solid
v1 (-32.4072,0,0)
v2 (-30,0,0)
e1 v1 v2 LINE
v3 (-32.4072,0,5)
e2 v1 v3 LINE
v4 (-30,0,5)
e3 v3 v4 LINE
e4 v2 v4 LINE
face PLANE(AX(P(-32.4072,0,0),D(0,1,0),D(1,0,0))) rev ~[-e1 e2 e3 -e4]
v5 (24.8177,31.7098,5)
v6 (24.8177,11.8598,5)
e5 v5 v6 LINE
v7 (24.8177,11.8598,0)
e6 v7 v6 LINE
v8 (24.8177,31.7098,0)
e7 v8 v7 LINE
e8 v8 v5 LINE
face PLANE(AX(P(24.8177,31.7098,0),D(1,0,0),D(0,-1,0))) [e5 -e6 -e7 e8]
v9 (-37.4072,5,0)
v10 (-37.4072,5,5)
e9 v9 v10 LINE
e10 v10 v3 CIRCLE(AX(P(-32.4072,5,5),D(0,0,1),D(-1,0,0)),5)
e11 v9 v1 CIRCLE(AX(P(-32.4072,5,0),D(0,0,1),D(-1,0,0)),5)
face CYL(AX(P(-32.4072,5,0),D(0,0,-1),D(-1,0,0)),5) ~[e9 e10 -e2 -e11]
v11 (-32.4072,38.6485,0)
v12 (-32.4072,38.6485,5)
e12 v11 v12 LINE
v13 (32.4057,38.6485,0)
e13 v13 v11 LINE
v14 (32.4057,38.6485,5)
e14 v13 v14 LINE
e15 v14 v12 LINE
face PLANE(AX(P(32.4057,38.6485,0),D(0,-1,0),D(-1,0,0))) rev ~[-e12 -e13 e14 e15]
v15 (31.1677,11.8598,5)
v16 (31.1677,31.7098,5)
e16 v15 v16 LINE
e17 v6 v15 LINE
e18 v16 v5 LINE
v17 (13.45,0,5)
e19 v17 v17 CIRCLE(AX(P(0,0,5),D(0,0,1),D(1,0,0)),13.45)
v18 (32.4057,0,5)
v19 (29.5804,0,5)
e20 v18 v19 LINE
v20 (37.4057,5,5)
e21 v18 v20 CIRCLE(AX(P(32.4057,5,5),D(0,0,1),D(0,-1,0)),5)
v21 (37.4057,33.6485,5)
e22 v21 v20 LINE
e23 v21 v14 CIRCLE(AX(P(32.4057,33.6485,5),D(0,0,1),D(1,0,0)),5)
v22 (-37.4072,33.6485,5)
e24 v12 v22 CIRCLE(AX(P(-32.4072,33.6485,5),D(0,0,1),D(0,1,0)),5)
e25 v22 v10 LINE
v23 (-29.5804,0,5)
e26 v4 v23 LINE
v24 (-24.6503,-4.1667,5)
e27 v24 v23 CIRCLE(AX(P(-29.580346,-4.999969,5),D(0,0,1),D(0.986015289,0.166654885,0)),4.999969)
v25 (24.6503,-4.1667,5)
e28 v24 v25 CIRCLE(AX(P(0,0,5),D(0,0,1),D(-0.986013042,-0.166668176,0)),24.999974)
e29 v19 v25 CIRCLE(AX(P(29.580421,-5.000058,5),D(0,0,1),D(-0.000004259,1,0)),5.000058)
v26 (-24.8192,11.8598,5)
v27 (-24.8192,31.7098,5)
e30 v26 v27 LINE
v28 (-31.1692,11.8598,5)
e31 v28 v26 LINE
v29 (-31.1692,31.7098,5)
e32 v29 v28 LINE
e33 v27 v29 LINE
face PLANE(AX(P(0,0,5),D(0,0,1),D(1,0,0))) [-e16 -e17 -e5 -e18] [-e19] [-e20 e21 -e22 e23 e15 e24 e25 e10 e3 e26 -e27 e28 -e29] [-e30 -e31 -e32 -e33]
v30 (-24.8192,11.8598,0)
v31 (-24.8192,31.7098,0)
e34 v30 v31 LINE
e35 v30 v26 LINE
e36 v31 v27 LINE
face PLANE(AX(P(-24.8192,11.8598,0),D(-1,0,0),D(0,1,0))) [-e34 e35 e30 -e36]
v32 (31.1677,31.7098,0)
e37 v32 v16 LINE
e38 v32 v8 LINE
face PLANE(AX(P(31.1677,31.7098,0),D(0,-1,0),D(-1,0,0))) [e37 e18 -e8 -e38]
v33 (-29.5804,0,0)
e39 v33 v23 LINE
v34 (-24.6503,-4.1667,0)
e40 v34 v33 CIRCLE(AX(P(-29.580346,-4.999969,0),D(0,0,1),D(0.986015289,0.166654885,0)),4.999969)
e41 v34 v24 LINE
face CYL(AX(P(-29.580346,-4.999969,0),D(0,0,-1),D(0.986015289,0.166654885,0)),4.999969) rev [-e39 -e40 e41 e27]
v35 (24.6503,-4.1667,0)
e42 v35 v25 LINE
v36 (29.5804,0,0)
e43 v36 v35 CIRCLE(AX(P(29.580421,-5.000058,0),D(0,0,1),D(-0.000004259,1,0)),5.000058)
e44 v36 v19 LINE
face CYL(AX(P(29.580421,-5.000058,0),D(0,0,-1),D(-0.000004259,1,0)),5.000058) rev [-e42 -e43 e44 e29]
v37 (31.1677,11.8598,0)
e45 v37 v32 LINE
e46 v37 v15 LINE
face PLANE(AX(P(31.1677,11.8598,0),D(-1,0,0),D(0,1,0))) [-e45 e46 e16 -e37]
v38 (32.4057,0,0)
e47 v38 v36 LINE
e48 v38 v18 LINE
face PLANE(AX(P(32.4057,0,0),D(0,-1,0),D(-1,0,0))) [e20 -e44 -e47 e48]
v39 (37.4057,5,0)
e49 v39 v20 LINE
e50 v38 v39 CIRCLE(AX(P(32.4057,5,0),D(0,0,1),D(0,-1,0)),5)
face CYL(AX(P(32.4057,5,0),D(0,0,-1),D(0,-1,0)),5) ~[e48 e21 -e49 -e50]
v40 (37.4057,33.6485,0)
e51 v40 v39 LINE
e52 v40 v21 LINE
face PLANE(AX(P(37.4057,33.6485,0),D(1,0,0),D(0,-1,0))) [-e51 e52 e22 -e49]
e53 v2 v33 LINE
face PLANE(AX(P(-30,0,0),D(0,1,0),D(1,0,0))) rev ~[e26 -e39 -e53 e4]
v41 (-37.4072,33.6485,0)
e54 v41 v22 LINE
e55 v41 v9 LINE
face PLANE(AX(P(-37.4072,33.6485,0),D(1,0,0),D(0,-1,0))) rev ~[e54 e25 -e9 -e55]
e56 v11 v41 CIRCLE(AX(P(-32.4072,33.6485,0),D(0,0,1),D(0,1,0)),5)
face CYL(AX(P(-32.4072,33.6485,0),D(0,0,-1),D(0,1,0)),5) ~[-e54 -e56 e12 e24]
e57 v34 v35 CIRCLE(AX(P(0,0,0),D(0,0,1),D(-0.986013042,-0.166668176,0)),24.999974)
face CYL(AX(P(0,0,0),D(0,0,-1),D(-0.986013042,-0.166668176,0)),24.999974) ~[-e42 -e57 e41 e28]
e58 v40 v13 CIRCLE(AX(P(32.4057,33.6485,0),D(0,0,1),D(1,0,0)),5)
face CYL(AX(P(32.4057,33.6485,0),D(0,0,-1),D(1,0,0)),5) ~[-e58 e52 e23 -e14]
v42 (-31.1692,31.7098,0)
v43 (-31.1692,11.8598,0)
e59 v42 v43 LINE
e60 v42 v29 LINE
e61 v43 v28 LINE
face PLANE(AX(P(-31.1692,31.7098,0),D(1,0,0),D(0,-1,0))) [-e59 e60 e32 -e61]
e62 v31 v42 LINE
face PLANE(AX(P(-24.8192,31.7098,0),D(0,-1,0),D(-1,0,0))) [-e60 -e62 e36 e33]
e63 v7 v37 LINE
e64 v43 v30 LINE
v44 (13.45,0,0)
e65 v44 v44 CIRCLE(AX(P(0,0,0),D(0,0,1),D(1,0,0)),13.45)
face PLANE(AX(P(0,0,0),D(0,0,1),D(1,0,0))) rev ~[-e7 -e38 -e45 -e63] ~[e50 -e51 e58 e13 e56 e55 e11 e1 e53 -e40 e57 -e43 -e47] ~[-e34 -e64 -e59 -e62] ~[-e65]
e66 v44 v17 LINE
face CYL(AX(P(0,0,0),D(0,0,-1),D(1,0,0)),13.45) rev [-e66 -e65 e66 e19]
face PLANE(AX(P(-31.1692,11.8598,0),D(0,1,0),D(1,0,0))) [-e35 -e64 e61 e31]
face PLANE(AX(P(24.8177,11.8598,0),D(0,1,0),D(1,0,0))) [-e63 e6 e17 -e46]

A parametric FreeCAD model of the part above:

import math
import FreeCAD as App
import Part
import Sketcher

V = App.Vector


def add_polygon(sketch, points):
    """Adds a closed chain of lines whose ends are joined by coincident constraints."""
    first, n = sketch.GeometryCount, len(points)
    for a, b in zip(points, points[1:] + points[:1]):
        sketch.addGeometry(Part.LineSegment(App.Vector(*a, 0), App.Vector(*b, 0)), False)
    for i in range(n):
        sketch.addConstraint(Sketcher.Constraint("Coincident", first + i, 2, first + (i + 1) % n, 1))

doc = App.newDocument("Part")
body = doc.addObject("PartDesign::Body", "Body")

sketch1 = body.newObject("Sketcher::SketchObject", "Sketch")
sketch1.AttachmentSupport = (doc.getObject("XY_Plane"), [""])
sketch1.MapMode = "FlatFace"
sketch1.addGeometry(Part.ArcOfCircle(Part.Circle(V(32.4, 33.6, 0), V(0, 0, 1), 5), math.radians(0), math.radians(90)), False)
sketch1.addGeometry(Part.LineSegment(V(32.4, 38.6, 0), V(-32.4, 38.6, 0)), False)
sketch1.addGeometry(Part.ArcOfCircle(Part.Circle(V(-32.4, 33.6, 0), V(0, 0, 1), 5), math.radians(90), math.radians(180)), False)
sketch1.addGeometry(Part.LineSegment(V(-37.4, 33.6, 0), V(-37.4, 5, 0)), False)
sketch1.addGeometry(Part.ArcOfCircle(Part.Circle(V(-32.4, 5, 0), V(0, 0, 1), 5), math.radians(180), math.radians(270)), False)
sketch1.addGeometry(Part.LineSegment(V(-32.4, 0, 0), V(-29.6, 0, 0)), False)
sketch1.addGeometry(Part.ArcOfCircle(Part.Circle(V(-29.6, -5, 0), V(0, 0, 1), 5), math.radians(10), math.radians(90)), False)
sketch1.addGeometry(Part.ArcOfCircle(Part.Circle(V(0, 0, 0), V(0, 0, 1), 25), math.radians(-170), math.radians(-10)), False)
sketch1.addGeometry(Part.ArcOfCircle(Part.Circle(V(29.6, -5, 0), V(0, 0, 1), 5), math.radians(90), math.radians(170)), False)
sketch1.addGeometry(Part.LineSegment(V(29.6, 0, 0), V(32.4, 0, 0)), False)
sketch1.addGeometry(Part.ArcOfCircle(Part.Circle(V(32.4, 5, 0), V(0, 0, 1), 5), math.radians(-90), math.radians(0)), False)
sketch1.addGeometry(Part.LineSegment(V(37.4, 5, 0), V(37.4, 33.6, 0)), False)
sketch1.addGeometry(Part.Circle(V(0, 0, 0), V(0, 0, 1), 13.4), False)
add_polygon(sketch1, [(-24.8, 11.9), (-31.2, 11.9), (-31.2, 31.7), (-24.8, 31.7)])
add_polygon(sketch1, [(31.2, 11.9), (24.8, 11.9), (24.8, 31.7), (31.2, 31.7)])
sketch1.addConstraint([
    Sketcher.Constraint("Tangent", 0, 2, 1, 1),
    Sketcher.Constraint("Tangent", 1, 2, 2, 1),
    Sketcher.Constraint("Tangent", 2, 2, 3, 1),
    Sketcher.Constraint("Tangent", 3, 2, 4, 1),
    Sketcher.Constraint("Tangent", 4, 2, 5, 1),
    Sketcher.Constraint("Tangent", 5, 2, 6, 2),
    Sketcher.Constraint("Tangent", 6, 1, 7, 1),
    Sketcher.Constraint("Tangent", 7, 2, 8, 2),
    Sketcher.Constraint("Tangent", 8, 1, 9, 1),
    Sketcher.Constraint("Tangent", 9, 2, 10, 1),
    Sketcher.Constraint("Tangent", 10, 2, 11, 1),
    Sketcher.Constraint("Tangent", 11, 2, 0, 1),
    Sketcher.Constraint("Horizontal", 1),
    Sketcher.Constraint("Vertical", 3),
    Sketcher.Constraint("Horizontal", 5),
    Sketcher.Constraint("Horizontal", 9),
    Sketcher.Constraint("Vertical", 11),
    Sketcher.Constraint("Horizontal", 13),
    Sketcher.Constraint("Vertical", 14),
    Sketcher.Constraint("Horizontal", 15),
    Sketcher.Constraint("Vertical", 16),
    Sketcher.Constraint("Horizontal", 17),
    Sketcher.Constraint("Vertical", 18),
    Sketcher.Constraint("Horizontal", 19),
    Sketcher.Constraint("Vertical", 20),
    Sketcher.Constraint("Coincident", 7, 3, -1, 1),
    Sketcher.Constraint("Coincident", 12, 3, -1, 1),
    Sketcher.Constraint("Equal", 0, 2),
    Sketcher.Constraint("Equal", 2, 4),
    Sketcher.Constraint("Equal", 4, 6),
    Sketcher.Constraint("Equal", 6, 8),
    Sketcher.Constraint("Equal", 8, 10),
    Sketcher.Constraint("Symmetric", 5, 2, 8, 1, -1, 1),
    Sketcher.Constraint("Horizontal", 16, 2, 17, 2),
    Sketcher.Constraint("Horizontal", 15, 2, 18, 2),
    Sketcher.Constraint("Equal", 15, 17),
    Sketcher.Constraint("Radius", 0, 5.0),
    Sketcher.Constraint("Radius", 7, 25.0),
    Sketcher.Constraint("Diameter", 12, 26.9),
    Sketcher.Constraint("DistanceX", 13, 2, 13, 1, 6.35),
    Sketcher.Constraint("DistanceY", 14, 1, 14, 2, 19.85),
    Sketcher.Constraint("DistanceX", 1, 2, 1, 1, 64.813),
    Sketcher.Constraint("DistanceX", 5, 1, 5, 2, 2.8268),
    Sketcher.Constraint("DistanceY", 3, 2, 3, 1, 28.6485),
    Sketcher.Constraint("DistanceX", 4, 3, 13, 2, 1.238),
    Sketcher.Constraint("DistanceX", 17, 2, 10, 3, 7.588),
    Sketcher.Constraint("DistanceY", -1, 1, 13, 2, 11.8598),
])
pad1 = body.newObject("PartDesign::Pad", "Pad")
pad1.Profile = sketch1
pad1.Length = 5

doc.recompute()
